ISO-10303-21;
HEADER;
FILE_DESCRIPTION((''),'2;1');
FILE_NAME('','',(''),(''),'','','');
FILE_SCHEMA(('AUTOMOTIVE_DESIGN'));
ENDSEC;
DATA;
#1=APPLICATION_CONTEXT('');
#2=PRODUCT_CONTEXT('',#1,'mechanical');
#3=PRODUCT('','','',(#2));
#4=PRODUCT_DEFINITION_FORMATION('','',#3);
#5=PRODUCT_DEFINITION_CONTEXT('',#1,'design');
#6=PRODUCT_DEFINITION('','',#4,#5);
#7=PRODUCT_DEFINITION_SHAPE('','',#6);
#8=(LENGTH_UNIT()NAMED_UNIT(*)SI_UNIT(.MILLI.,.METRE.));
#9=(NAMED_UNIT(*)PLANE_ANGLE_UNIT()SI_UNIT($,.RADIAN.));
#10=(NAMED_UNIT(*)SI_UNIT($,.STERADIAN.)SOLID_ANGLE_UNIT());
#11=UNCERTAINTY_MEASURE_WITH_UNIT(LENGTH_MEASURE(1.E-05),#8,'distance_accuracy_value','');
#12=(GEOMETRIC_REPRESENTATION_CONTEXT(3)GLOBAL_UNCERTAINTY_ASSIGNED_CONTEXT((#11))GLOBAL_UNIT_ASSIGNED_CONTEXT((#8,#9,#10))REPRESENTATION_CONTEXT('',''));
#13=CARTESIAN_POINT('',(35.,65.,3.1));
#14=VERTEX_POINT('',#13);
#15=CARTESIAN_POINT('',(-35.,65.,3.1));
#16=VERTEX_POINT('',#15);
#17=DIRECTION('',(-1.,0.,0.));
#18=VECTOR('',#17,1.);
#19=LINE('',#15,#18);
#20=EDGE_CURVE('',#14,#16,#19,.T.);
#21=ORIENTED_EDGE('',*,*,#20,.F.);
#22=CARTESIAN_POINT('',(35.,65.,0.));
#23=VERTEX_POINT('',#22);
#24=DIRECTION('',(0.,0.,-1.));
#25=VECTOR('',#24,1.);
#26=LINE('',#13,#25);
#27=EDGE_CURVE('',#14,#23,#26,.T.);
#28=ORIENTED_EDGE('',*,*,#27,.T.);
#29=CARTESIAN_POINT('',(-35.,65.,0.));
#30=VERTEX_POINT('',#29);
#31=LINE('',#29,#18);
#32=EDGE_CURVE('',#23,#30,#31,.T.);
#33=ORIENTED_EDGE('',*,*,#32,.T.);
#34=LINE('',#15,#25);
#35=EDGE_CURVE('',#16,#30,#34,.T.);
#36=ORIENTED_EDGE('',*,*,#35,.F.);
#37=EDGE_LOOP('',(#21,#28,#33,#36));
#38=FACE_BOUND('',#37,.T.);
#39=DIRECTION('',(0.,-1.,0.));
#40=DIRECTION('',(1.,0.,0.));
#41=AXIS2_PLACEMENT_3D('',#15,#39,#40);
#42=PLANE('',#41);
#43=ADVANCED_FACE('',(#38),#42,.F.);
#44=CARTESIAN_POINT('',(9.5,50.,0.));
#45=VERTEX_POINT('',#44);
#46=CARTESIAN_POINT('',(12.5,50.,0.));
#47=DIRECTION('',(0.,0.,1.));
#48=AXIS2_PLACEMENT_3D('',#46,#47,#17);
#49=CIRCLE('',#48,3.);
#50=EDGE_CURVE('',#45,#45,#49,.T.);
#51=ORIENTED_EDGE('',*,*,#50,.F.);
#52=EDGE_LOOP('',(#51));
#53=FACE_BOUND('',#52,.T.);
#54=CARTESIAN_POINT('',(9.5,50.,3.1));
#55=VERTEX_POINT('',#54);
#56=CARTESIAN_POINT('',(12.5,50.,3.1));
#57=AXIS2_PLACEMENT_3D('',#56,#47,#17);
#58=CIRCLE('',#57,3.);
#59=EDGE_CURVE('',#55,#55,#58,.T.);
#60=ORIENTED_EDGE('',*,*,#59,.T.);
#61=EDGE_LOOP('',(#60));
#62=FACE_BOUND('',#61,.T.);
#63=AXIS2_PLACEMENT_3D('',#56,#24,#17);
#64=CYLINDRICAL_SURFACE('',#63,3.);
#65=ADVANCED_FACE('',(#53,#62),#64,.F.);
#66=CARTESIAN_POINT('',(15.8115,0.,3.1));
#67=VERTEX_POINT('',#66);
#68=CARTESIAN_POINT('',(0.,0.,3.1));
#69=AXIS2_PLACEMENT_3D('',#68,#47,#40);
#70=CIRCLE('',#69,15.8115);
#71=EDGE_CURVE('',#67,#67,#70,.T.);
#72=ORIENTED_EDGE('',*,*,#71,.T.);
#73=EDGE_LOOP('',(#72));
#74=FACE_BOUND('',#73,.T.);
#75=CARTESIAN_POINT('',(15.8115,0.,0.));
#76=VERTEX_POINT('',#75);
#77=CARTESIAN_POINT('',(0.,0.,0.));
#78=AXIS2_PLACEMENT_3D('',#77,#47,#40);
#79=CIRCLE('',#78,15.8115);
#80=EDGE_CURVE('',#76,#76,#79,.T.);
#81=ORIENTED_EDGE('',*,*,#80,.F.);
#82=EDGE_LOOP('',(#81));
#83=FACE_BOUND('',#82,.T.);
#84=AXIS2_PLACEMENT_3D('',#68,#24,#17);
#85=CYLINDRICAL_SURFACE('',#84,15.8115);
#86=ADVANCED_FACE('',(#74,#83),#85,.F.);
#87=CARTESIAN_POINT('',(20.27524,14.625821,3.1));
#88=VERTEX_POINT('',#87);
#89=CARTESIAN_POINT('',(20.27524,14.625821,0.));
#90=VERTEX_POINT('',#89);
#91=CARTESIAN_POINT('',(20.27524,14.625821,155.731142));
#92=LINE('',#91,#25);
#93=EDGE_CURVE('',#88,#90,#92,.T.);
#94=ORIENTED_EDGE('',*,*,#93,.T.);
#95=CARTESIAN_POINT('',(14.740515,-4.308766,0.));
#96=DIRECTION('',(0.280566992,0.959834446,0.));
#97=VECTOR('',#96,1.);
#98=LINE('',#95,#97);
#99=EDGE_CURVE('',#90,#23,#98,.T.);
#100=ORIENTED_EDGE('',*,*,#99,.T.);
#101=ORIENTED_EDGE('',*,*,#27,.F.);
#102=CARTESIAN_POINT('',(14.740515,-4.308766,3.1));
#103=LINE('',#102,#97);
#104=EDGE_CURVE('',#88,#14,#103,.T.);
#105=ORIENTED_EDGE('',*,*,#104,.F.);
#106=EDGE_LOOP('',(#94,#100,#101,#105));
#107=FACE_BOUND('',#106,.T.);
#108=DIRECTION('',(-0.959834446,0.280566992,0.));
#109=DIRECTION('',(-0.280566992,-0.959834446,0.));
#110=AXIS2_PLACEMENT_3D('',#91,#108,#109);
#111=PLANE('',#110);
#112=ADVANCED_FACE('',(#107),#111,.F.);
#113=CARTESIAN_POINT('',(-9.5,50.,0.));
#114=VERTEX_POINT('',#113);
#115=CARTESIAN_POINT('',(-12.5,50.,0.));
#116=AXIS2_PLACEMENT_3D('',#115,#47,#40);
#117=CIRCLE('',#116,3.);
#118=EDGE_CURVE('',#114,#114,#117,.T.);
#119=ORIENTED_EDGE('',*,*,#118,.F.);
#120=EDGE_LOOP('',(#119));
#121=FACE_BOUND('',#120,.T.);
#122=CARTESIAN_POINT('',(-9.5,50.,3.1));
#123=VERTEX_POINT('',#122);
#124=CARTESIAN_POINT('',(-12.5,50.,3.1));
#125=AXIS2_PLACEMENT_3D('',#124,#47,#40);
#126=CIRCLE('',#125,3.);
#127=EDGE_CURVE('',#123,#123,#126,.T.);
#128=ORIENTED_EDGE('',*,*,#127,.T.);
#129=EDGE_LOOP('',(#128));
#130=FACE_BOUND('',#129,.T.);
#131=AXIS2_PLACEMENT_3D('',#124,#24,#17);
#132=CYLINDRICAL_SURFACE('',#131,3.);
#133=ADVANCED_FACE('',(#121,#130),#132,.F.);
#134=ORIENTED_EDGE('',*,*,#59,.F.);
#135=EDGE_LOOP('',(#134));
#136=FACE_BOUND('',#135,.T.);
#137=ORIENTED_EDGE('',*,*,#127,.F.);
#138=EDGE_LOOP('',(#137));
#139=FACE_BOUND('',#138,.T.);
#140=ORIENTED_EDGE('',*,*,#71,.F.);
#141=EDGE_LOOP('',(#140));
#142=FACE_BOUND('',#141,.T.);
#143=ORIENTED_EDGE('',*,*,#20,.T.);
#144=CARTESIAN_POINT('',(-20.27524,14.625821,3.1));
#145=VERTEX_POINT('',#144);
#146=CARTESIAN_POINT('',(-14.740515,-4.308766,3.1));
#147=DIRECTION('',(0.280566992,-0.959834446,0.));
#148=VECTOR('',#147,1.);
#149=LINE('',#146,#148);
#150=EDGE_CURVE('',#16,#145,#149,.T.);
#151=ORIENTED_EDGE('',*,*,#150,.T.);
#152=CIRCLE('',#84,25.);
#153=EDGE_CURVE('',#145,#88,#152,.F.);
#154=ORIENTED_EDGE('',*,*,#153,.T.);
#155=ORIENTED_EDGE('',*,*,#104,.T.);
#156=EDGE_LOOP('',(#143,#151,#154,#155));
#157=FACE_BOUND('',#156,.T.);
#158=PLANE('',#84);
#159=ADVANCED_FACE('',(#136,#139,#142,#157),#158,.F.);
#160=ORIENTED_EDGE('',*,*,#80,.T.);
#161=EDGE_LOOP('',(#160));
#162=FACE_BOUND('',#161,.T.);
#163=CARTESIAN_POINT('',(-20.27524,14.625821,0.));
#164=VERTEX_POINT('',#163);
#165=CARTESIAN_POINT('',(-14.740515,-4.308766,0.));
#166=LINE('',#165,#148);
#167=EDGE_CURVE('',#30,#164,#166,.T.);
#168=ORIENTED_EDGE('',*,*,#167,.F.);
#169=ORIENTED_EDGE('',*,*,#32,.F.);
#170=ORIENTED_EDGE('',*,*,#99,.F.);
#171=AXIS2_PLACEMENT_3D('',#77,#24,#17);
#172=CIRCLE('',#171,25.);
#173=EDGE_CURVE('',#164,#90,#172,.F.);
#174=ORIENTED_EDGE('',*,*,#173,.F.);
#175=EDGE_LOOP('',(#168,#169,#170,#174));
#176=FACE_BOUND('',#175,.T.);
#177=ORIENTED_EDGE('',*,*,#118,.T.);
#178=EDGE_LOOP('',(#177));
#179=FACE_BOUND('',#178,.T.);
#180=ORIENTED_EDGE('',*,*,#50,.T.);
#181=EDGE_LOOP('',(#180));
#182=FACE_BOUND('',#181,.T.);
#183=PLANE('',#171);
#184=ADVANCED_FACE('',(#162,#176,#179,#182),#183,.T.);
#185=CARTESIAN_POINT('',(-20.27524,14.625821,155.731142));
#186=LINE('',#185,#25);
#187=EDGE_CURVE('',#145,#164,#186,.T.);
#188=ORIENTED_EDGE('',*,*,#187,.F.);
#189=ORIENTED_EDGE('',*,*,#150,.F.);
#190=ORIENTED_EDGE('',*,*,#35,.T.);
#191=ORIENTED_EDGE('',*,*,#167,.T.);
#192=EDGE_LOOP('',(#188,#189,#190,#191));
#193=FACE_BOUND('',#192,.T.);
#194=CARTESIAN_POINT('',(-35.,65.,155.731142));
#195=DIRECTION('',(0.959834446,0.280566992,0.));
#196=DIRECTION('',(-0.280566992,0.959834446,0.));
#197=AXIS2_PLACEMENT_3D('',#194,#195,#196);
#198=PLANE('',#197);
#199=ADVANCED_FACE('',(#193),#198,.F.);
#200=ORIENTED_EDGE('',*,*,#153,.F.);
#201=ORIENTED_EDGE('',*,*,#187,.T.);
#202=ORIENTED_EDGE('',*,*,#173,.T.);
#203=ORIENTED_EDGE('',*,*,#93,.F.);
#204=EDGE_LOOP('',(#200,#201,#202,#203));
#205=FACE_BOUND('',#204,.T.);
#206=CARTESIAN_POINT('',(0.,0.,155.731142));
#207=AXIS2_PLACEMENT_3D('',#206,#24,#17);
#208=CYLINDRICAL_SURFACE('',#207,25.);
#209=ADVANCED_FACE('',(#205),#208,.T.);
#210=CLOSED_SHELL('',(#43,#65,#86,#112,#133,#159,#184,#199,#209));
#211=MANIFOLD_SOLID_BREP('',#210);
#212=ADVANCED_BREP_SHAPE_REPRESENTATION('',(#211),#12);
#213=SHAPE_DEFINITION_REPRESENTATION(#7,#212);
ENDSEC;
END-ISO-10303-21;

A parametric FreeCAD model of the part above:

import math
import FreeCAD as App
import Part
import Sketcher
from FreeCAD import Vector

doc = App.newDocument("Part")
body = doc.addObject("PartDesign::Body", "Body")

sketch1 = body.newObject("Sketcher::SketchObject", "Sketch")
sketch1.AttachmentSupport = (doc.getObject("XY_Plane"), [""])
sketch1.MapMode = "FlatFace"
sketch1.addGeometry([
    Part.LineSegment(Vector(-35, 65, 0), Vector(-35, -35, 0)),
    Part.LineSegment(Vector(-35, -35, 0), Vector(35, -35, 0)),
    Part.LineSegment(Vector(35, -35, 0), Vector(35, 65, 0)),
    Part.LineSegment(Vector(35, 65, 0), Vector(-35, 65, 0)),
    Part.Circle(Vector(0, 0, 0), Vector(0, 0, 1), 15.8),
    Part.Circle(Vector(-12.5, 50, 0), Vector(0, 0, 1), 3),
    Part.Circle(Vector(12.5, 50, 0), Vector(0, 0, 1), 3),
], False)
sketch1.addConstraint([
    Sketcher.Constraint("Coincident", 0, 2, 1, 1),
    Sketcher.Constraint("Coincident", 1, 2, 2, 1),
    Sketcher.Constraint("Coincident", 2, 2, 3, 1),
    Sketcher.Constraint("Coincident", 3, 2, 0, 1),
    Sketcher.Constraint("Vertical", 0),
    Sketcher.Constraint("Horizontal", 1),
    Sketcher.Constraint("Vertical", 2),
    Sketcher.Constraint("Horizontal", 3),
    Sketcher.Constraint("Coincident", 4, 3, -1, 1),
    Sketcher.Constraint("Equal", 5, 6),
    Sketcher.Constraint("Symmetric", 5, 3, 6, 3, -2),
    Sketcher.Constraint("Diameter", 5, 6.0),
    Sketcher.Constraint("DistanceX", 1, 1, 1, 2, 70.0),
    Sketcher.Constraint("DistanceY", 0, 2, 0, 1, 100.0),
    Sketcher.Constraint("Diameter", 4, 31.623),
    Sketcher.Constraint("DistanceY", -1, 1, 5, 3, 50.0),
    Sketcher.Constraint("DistanceX", 0, 2, -1, 1, 35.0),
    Sketcher.Constraint("DistanceY", 0, 2, -1, 1, 35.0),
    Sketcher.Constraint("DistanceX", 5, 3, 6, 3, 25.0),
])
pad1 = body.newObject("PartDesign::Pad", "Pad")
pad1.Profile = sketch1
pad1.Length = 3.1

sketch2 = body.newObject("Sketcher::SketchObject", "Sketch001")
sketch2.AttachmentSupport = (doc.getObject("XY_Plane"), [""])
sketch2.MapMode = "FlatFace"
sketch2.AttachmentOffset = App.Placement(Vector(0, 0, 3.1), App.Rotation())
sketch2.addGeometry([
    Part.LineSegment(Vector(-35, 65, 0), Vector(-106, 309, 0)),
    Part.LineSegment(Vector(-106, 309, 0), Vector(-106, -199, 0)),
    Part.LineSegment(Vector(-106, -199, 0), Vector(106, -199, 0)),
    Part.LineSegment(Vector(106, -199, 0), Vector(106, 309, 0)),
    Part.LineSegment(Vector(106, 309, 0), Vector(35, 65, 0)),
    Part.LineSegment(Vector(35, 65, 0), Vector(20, 15, 0)),
    Part.ArcOfCircle(Part.Circle(Vector(0, 0, 0), Vector(0, 0, 1), 25), math.radians(144), math.radians(396)),
    Part.LineSegment(Vector(-20, 15, 0), Vector(-35, 65, 0)),
], False)
sketch2.addConstraint([
    Sketcher.Constraint("Coincident", 0, 2, 1, 1),
    Sketcher.Constraint("Coincident", 1, 2, 2, 1),
    Sketcher.Constraint("Coincident", 2, 2, 3, 1),
    Sketcher.Constraint("Coincident", 3, 2, 4, 1),
    Sketcher.Constraint("Coincident", 4, 2, 5, 1),
    Sketcher.Constraint("Coincident", 5, 2, 6, 2),
    Sketcher.Constraint("Coincident", 6, 1, 7, 1),
    Sketcher.Constraint("Coincident", 7, 2, 0, 1),
    Sketcher.Constraint("Vertical", 1),
    Sketcher.Constraint("Horizontal", 2),
    Sketcher.Constraint("Vertical", 3),
    Sketcher.Constraint("Coincident", 6, 3, -1, 1),
    Sketcher.Constraint("Symmetric", 0, 2, 3, 2, -2),
    Sketcher.Constraint("Symmetric", 4, 2, 7, 2, -2),
    Sketcher.Constraint("Parallel", 4, 5),
    Sketcher.Constraint("Parallel", 0, 7),
    Sketcher.Constraint("Radius", 6, 25.0),
    Sketcher.Constraint("DistanceX", -1, 1, 4, 2, 35.0),
    Sketcher.Constraint("DistanceY", -1, 1, 4, 2, 65.0),
    Sketcher.Constraint("DistanceX", 0, 2, -1, 1, 106.300802),
    Sketcher.Constraint("DistanceY", 1, 2, 1, 1, 508.262225),
    Sketcher.Constraint("DistanceY", 1, 2, -1, 1, 199.338429),
])
pocket1 = body.newObject("PartDesign::Pocket", "Pocket")
pocket1.Profile = sketch2
pocket1.Type = "ThroughAll"
pocket1.Midplane = True

doc.recompute()
